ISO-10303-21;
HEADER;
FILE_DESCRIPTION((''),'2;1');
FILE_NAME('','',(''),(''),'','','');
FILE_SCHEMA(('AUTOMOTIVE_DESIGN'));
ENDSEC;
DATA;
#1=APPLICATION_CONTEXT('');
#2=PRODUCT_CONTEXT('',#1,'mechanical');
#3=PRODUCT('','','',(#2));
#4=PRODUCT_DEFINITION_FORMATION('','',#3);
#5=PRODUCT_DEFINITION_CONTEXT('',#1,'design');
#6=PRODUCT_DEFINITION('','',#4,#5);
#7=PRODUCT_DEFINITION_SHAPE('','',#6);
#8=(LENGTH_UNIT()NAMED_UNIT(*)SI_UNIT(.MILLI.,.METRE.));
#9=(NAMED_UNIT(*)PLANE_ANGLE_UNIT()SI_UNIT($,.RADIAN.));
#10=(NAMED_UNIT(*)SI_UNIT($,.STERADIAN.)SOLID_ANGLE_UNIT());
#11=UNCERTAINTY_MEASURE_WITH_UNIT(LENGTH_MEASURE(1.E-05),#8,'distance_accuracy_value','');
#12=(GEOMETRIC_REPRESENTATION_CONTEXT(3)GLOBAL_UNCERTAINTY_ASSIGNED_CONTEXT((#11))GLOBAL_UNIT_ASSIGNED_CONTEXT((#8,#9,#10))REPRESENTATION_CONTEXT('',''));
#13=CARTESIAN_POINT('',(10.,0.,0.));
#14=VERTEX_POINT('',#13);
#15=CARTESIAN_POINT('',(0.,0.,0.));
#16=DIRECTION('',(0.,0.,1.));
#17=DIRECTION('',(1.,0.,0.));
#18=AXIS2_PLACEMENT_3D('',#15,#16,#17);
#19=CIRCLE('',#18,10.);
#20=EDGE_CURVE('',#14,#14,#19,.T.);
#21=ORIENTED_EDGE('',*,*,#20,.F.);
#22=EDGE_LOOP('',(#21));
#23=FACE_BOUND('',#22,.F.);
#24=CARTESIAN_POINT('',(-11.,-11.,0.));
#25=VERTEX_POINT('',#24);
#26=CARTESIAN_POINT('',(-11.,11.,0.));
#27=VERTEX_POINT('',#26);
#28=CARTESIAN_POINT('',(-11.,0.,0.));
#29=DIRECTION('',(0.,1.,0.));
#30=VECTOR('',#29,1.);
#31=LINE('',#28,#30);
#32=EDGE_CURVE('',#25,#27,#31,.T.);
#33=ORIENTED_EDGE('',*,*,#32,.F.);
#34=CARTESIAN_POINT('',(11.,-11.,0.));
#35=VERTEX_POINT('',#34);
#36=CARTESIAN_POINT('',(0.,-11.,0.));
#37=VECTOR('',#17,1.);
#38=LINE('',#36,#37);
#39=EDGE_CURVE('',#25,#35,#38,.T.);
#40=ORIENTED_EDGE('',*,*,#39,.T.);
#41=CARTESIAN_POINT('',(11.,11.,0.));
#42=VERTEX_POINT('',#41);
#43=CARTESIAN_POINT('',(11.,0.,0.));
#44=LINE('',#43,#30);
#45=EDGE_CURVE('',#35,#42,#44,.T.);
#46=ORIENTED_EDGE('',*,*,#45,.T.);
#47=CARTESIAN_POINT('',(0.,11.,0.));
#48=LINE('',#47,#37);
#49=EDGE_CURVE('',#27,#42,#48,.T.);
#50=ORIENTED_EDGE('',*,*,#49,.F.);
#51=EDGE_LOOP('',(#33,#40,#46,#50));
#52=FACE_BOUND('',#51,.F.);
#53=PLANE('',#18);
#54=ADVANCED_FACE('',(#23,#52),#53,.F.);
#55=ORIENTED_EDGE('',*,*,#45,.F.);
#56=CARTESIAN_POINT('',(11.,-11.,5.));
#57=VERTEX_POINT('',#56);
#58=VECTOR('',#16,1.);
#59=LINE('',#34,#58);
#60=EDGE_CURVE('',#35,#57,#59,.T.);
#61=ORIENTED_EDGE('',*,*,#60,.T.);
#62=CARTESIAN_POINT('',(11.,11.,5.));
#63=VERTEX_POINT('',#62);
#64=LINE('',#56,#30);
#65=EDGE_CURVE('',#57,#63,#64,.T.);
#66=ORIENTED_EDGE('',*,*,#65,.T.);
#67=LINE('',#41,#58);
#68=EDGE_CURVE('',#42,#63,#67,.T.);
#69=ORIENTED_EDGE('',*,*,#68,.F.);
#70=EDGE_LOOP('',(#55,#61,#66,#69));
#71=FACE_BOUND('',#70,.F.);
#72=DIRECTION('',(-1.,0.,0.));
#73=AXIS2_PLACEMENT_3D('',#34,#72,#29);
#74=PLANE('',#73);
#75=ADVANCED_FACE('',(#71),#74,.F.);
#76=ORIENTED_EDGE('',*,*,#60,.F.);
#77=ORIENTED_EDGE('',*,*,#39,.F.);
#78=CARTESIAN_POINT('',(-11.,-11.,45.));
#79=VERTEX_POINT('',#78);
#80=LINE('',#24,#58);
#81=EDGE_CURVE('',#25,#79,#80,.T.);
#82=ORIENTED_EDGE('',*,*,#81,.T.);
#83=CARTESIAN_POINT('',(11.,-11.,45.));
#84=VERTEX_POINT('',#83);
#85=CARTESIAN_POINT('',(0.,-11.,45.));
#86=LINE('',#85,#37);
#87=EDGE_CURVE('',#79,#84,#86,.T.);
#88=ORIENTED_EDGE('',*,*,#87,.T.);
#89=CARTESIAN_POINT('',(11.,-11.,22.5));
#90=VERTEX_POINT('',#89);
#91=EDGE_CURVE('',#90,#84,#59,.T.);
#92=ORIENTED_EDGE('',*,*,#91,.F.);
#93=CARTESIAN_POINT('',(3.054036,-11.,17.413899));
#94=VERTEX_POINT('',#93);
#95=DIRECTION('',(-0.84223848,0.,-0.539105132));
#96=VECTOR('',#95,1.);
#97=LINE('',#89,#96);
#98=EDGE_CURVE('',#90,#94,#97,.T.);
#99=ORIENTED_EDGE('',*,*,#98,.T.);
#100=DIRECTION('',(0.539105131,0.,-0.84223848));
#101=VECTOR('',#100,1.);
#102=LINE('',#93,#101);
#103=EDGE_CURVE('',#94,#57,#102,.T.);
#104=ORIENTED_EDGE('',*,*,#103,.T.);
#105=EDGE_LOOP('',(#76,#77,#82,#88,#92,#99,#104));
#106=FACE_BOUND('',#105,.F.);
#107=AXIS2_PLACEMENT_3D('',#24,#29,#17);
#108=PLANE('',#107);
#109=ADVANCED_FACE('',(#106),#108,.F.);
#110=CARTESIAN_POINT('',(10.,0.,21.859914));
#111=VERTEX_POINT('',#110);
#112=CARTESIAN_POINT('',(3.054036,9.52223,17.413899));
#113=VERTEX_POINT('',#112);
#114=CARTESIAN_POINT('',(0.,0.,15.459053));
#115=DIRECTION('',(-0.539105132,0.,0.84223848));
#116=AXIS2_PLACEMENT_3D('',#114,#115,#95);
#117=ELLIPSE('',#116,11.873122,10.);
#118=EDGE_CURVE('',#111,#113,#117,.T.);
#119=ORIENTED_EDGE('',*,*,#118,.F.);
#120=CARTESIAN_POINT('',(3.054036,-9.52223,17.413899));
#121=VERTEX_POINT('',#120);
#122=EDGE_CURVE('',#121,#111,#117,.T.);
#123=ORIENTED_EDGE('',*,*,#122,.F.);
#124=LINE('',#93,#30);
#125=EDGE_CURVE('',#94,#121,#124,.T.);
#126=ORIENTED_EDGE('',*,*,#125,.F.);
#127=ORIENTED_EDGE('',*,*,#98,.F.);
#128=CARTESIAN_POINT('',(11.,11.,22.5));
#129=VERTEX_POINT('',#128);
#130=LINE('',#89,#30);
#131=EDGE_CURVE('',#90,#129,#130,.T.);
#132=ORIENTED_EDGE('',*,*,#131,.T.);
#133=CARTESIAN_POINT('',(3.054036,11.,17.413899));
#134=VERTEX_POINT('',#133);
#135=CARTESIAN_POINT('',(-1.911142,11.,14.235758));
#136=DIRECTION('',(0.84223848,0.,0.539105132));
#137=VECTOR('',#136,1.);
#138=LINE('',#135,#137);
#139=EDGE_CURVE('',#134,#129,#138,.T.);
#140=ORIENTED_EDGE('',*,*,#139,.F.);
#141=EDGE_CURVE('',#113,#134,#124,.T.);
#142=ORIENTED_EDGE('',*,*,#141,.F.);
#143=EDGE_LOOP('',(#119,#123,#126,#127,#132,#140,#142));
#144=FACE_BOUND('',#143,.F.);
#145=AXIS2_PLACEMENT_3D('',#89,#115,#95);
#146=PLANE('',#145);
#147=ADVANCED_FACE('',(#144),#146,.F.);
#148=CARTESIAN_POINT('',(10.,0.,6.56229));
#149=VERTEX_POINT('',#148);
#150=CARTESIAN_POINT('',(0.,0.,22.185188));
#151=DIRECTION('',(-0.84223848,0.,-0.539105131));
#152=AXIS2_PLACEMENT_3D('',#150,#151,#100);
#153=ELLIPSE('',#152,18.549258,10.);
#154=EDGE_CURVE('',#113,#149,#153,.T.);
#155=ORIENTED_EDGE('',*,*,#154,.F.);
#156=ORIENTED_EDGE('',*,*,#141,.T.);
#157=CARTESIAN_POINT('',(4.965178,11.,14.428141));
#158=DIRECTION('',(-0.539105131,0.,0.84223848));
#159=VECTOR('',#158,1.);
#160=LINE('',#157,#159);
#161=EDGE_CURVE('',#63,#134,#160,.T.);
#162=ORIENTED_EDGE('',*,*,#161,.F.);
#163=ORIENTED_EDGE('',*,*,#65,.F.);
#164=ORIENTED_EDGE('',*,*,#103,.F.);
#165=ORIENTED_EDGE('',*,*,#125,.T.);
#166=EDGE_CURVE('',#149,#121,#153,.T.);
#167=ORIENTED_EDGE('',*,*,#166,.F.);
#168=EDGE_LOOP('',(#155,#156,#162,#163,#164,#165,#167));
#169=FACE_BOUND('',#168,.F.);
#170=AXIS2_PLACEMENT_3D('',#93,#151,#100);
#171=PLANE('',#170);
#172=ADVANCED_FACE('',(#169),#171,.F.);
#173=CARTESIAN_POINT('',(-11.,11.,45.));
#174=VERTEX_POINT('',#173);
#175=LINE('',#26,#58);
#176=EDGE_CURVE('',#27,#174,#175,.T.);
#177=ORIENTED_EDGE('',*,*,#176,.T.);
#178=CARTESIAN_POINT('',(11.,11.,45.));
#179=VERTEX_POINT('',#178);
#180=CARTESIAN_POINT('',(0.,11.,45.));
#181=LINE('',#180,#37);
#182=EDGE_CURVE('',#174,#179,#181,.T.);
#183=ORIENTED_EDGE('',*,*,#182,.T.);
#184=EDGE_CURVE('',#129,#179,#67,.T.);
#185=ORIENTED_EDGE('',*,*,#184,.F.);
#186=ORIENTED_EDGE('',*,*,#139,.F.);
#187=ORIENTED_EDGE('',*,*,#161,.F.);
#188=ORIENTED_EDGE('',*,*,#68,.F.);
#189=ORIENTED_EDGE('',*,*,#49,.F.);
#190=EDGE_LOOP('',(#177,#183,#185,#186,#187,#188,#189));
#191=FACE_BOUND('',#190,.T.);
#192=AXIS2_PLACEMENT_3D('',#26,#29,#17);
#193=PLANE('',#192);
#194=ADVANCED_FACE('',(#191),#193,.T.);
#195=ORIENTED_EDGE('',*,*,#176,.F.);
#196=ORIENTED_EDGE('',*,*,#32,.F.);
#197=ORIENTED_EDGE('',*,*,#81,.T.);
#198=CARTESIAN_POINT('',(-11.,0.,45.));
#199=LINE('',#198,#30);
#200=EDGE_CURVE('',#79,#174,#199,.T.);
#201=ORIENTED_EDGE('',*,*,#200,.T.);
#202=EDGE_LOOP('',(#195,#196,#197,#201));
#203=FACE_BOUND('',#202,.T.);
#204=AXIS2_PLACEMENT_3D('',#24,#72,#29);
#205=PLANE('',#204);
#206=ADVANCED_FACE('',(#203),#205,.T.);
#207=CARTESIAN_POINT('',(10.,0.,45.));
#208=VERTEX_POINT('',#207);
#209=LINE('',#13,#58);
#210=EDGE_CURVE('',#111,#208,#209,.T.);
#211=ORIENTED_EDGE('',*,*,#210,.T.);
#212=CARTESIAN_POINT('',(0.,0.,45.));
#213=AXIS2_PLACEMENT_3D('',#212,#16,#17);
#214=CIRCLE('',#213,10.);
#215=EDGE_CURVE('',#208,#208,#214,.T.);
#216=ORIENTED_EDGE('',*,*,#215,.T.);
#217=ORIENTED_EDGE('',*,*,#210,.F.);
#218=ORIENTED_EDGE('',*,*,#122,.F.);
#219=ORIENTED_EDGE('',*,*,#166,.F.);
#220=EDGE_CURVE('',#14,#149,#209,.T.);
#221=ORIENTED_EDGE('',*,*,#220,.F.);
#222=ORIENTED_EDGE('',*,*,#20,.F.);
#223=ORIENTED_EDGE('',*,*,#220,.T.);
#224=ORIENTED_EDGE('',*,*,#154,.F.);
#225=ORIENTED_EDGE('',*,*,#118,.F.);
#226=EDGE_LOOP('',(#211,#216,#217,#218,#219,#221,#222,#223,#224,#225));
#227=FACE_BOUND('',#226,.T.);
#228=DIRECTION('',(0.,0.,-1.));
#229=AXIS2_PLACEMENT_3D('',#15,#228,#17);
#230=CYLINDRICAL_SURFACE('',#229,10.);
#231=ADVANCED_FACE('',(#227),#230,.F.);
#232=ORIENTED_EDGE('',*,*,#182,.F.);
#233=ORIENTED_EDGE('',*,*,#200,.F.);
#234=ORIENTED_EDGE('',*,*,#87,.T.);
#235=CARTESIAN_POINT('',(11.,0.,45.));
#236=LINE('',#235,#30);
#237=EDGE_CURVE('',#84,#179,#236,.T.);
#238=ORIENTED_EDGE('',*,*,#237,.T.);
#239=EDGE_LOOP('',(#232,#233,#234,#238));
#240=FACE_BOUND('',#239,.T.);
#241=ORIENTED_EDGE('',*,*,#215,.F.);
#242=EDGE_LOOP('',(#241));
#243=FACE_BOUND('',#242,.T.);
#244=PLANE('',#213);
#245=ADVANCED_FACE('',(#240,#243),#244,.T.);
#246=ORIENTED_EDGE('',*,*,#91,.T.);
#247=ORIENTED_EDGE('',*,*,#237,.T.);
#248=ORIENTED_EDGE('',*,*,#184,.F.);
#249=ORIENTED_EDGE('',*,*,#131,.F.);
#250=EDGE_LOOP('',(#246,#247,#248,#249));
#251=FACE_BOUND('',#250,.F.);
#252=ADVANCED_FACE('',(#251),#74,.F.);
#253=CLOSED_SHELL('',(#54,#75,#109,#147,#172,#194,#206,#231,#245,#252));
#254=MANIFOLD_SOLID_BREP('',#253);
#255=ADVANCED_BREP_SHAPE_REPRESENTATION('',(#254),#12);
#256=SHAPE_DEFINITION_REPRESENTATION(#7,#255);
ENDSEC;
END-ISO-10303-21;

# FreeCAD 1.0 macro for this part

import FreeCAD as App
import Part
import Sketcher
from FreeCAD import Vector


def add_polygon(sketch, points):
    """Adds a closed chain of lines whose ends are joined by coincident constraints."""
    first, n = sketch.GeometryCount, len(points)
    for a, b in zip(points, points[1:] + points[:1]):
        sketch.addGeometry(Part.LineSegment(App.Vector(*a, 0), App.Vector(*b, 0)), False)
    for i in range(n):
        sketch.addConstraint(Sketcher.Constraint("Coincident", first + i, 2, first + (i + 1) % n, 1))

doc = App.newDocument("Part")
body = doc.addObject("PartDesign::Body", "Body")

# Sketch on XY plane
sketch1 = body.newObject("Sketcher::SketchObject", "Sketch")
sketch1.AttachmentSupport = (doc.getObject("XY_Plane"), [""])
sketch1.MapMode = "FlatFace"
add_polygon(sketch1, [(-11, 11), (-11, -11), (11, -11), (11, 11)])  # lines 0-3
sketch1.addGeometry(Part.Circle(Vector(0, 0, 0), Vector(0, 0, 1), 10), False)  # 4
sketch1.addConstraint([
    Sketcher.Constraint("Vertical", 0),
    Sketcher.Constraint("Horizontal", 1),
    Sketcher.Constraint("Vertical", 2),
    Sketcher.Constraint("Horizontal", 3),
    Sketcher.Constraint("Coincident", 4, 3, -1, 1),
    Sketcher.Constraint("Symmetric", 0, 2, 2, 2, -1, 1),
    Sketcher.Constraint("Equal", 3, 0),
    Sketcher.Constraint("Diameter", 4, 20.0),
    Sketcher.Constraint("DistanceX", 1, 1, 1, 2, 22.0),
])
pad1 = body.newObject("PartDesign::Pad", "Pad")
pad1.Profile = sketch1
pad1.Length = 45

# Sketch on XZ plane
sketch2 = body.newObject("Sketcher::SketchObject", "Sketch001")
sketch2.AttachmentSupport = (doc.getObject("XZ_Plane"), [""])
sketch2.MapMode = "FlatFace"
sketch2.AttachmentOffset = App.Placement(Vector(0, 0, 11), App.Rotation())
add_polygon(sketch2, [(11, 5), (11, 22), (3, 17)])  # lines 0-2
sketch2.addConstraint([
    Sketcher.Constraint("Vertical", 0),
    Sketcher.Constraint("Perpendicular", 1, 2),
    Sketcher.Constraint("DistanceY", 0, 1, 0, 2, 17.5),
    Sketcher.Constraint("DistanceX", -1, 1, 0, 2, 11.0),
    Sketcher.Constraint("DistanceY", -1, 1, 2, 2, 5.0),
    Sketcher.Constraint("DistanceY", -1, 1, 1, 2, 17.413899),
])
pocket1 = body.newObject("PartDesign::Pocket", "Pocket")
pocket1.Profile = sketch2
pocket1.Type = "ThroughAll"

doc.recompute()
